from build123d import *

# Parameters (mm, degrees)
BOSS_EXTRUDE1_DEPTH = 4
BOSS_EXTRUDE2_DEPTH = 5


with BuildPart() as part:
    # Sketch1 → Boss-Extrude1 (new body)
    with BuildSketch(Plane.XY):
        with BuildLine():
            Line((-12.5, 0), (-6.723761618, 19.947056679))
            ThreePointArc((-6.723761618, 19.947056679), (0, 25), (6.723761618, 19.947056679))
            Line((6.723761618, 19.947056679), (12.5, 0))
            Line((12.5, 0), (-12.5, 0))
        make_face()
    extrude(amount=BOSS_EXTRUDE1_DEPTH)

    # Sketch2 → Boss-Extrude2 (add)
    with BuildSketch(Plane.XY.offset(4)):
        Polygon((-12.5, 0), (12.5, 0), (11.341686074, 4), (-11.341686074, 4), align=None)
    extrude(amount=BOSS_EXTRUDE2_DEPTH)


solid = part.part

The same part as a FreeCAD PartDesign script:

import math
import FreeCAD as App
import Part
import Sketcher

V = App.Vector
Q = App.Units.Quantity


def add_polygon(sketch, points):
    """Adds a closed chain of lines whose ends are joined by coincident constraints."""
    first, n = sketch.GeometryCount, len(points)
    for a, b in zip(points, points[1:] + points[:1]):
        sketch.addGeometry(Part.LineSegment(App.Vector(*a, 0), App.Vector(*b, 0)), False)
    for i in range(n):
        sketch.addConstraint(Sketcher.Constraint("Coincident", first + i, 2, first + (i + 1) % n, 1))

doc = App.newDocument("Part")
body = doc.addObject("PartDesign::Body", "Body")

sketch1 = doc.addObject("Sketcher::SketchObject", "Sketch")
body.addObject(sketch1)
sketch1.AttachmentSupport = (doc.XY_Plane, [""])
sketch1.MapMode = "FlatFace"
sketch1.addGeometry(Part.LineSegment(V(-6.723762, 19.947057, 0), V(-12.5, 0, 0)), False)
sketch1.addGeometry(Part.LineSegment(V(-12.5, 0, 0), V(12.5, 0, 0)), False)
sketch1.addGeometry(Part.LineSegment(V(12.5, 0, 0), V(6.723762, 19.947057, 0)), False)
sketch1.addGeometry(Part.ArcOfCircle(Part.Circle(V(0, 18, 0), V(0, 0, 1), 7), math.radians(16.149879), math.radians(163.850121)), False)
sketch1.addConstraint(Sketcher.Constraint("Coincident", 0, 2, 1, 1))
sketch1.addConstraint(Sketcher.Constraint("Coincident", 1, 2, 2, 1))
sketch1.addConstraint(Sketcher.Constraint("Tangent", 2, 2, 3, 1))
sketch1.addConstraint(Sketcher.Constraint("Tangent", 3, 2, 0, 1))
sketch1.addConstraint(Sketcher.Constraint("Horizontal", 1))
sketch1.addConstraint(Sketcher.Constraint("Symmetric", 0, 2, 1, 2, -1, 1))
sketch1.addConstraint(Sketcher.Constraint("PointOnObject", 3, 3, -2))
sketch1.addConstraint(Sketcher.Constraint("Radius", 3, Q("7 mm")))
sketch1.addConstraint(Sketcher.Constraint("DistanceX", 1, 1, 1, 2, Q("25 mm")))
sketch1.addConstraint(Sketcher.Constraint("DistanceY", -1, 1, 3, 3, Q("18 mm")))
pad1 = doc.addObject("PartDesign::Pad", "Pad")
body.addObject(pad1)
pad1.Profile = sketch1
pad1.Length = 4

sketch2 = doc.addObject("Sketcher::SketchObject", "Sketch001")
body.addObject(sketch2)
sketch2.AttachmentSupport = (doc.XY_Plane, [""])
sketch2.MapMode = "FlatFace"
sketch2.AttachmentOffset = App.Placement(V(0, 0, 4), App.Rotation())
add_polygon(sketch2, [(-12.5, 0), (12.5, 0), (11.341686, 4), (-11.341686, 4)])
sketch2.addConstraint(Sketcher.Constraint("Horizontal", 0))
sketch2.addConstraint(Sketcher.Constraint("Horizontal", 2))
sketch2.addConstraint(Sketcher.Constraint("Symmetric", 0, 2, 3, 2, -1, 1))
sketch2.addConstraint(Sketcher.Constraint("Equal", 1, 3))
sketch2.addConstraint(Sketcher.Constraint("DistanceX", 0, 1, 0, 2, Q("25 mm")))
sketch2.addConstraint(Sketcher.Constraint("DistanceY", -1, 1, 1, 2, Q("4 mm")))
sketch2.addConstraint(Sketcher.Constraint("DistanceX", 2, 2, 2, 1, Q("22.683372 mm")))
pad2 = doc.addObject("PartDesign::Pad", "Pad001")
body.addObject(pad2)
pad2.Profile = sketch2
pad2.Length = 5

doc.recompute()
